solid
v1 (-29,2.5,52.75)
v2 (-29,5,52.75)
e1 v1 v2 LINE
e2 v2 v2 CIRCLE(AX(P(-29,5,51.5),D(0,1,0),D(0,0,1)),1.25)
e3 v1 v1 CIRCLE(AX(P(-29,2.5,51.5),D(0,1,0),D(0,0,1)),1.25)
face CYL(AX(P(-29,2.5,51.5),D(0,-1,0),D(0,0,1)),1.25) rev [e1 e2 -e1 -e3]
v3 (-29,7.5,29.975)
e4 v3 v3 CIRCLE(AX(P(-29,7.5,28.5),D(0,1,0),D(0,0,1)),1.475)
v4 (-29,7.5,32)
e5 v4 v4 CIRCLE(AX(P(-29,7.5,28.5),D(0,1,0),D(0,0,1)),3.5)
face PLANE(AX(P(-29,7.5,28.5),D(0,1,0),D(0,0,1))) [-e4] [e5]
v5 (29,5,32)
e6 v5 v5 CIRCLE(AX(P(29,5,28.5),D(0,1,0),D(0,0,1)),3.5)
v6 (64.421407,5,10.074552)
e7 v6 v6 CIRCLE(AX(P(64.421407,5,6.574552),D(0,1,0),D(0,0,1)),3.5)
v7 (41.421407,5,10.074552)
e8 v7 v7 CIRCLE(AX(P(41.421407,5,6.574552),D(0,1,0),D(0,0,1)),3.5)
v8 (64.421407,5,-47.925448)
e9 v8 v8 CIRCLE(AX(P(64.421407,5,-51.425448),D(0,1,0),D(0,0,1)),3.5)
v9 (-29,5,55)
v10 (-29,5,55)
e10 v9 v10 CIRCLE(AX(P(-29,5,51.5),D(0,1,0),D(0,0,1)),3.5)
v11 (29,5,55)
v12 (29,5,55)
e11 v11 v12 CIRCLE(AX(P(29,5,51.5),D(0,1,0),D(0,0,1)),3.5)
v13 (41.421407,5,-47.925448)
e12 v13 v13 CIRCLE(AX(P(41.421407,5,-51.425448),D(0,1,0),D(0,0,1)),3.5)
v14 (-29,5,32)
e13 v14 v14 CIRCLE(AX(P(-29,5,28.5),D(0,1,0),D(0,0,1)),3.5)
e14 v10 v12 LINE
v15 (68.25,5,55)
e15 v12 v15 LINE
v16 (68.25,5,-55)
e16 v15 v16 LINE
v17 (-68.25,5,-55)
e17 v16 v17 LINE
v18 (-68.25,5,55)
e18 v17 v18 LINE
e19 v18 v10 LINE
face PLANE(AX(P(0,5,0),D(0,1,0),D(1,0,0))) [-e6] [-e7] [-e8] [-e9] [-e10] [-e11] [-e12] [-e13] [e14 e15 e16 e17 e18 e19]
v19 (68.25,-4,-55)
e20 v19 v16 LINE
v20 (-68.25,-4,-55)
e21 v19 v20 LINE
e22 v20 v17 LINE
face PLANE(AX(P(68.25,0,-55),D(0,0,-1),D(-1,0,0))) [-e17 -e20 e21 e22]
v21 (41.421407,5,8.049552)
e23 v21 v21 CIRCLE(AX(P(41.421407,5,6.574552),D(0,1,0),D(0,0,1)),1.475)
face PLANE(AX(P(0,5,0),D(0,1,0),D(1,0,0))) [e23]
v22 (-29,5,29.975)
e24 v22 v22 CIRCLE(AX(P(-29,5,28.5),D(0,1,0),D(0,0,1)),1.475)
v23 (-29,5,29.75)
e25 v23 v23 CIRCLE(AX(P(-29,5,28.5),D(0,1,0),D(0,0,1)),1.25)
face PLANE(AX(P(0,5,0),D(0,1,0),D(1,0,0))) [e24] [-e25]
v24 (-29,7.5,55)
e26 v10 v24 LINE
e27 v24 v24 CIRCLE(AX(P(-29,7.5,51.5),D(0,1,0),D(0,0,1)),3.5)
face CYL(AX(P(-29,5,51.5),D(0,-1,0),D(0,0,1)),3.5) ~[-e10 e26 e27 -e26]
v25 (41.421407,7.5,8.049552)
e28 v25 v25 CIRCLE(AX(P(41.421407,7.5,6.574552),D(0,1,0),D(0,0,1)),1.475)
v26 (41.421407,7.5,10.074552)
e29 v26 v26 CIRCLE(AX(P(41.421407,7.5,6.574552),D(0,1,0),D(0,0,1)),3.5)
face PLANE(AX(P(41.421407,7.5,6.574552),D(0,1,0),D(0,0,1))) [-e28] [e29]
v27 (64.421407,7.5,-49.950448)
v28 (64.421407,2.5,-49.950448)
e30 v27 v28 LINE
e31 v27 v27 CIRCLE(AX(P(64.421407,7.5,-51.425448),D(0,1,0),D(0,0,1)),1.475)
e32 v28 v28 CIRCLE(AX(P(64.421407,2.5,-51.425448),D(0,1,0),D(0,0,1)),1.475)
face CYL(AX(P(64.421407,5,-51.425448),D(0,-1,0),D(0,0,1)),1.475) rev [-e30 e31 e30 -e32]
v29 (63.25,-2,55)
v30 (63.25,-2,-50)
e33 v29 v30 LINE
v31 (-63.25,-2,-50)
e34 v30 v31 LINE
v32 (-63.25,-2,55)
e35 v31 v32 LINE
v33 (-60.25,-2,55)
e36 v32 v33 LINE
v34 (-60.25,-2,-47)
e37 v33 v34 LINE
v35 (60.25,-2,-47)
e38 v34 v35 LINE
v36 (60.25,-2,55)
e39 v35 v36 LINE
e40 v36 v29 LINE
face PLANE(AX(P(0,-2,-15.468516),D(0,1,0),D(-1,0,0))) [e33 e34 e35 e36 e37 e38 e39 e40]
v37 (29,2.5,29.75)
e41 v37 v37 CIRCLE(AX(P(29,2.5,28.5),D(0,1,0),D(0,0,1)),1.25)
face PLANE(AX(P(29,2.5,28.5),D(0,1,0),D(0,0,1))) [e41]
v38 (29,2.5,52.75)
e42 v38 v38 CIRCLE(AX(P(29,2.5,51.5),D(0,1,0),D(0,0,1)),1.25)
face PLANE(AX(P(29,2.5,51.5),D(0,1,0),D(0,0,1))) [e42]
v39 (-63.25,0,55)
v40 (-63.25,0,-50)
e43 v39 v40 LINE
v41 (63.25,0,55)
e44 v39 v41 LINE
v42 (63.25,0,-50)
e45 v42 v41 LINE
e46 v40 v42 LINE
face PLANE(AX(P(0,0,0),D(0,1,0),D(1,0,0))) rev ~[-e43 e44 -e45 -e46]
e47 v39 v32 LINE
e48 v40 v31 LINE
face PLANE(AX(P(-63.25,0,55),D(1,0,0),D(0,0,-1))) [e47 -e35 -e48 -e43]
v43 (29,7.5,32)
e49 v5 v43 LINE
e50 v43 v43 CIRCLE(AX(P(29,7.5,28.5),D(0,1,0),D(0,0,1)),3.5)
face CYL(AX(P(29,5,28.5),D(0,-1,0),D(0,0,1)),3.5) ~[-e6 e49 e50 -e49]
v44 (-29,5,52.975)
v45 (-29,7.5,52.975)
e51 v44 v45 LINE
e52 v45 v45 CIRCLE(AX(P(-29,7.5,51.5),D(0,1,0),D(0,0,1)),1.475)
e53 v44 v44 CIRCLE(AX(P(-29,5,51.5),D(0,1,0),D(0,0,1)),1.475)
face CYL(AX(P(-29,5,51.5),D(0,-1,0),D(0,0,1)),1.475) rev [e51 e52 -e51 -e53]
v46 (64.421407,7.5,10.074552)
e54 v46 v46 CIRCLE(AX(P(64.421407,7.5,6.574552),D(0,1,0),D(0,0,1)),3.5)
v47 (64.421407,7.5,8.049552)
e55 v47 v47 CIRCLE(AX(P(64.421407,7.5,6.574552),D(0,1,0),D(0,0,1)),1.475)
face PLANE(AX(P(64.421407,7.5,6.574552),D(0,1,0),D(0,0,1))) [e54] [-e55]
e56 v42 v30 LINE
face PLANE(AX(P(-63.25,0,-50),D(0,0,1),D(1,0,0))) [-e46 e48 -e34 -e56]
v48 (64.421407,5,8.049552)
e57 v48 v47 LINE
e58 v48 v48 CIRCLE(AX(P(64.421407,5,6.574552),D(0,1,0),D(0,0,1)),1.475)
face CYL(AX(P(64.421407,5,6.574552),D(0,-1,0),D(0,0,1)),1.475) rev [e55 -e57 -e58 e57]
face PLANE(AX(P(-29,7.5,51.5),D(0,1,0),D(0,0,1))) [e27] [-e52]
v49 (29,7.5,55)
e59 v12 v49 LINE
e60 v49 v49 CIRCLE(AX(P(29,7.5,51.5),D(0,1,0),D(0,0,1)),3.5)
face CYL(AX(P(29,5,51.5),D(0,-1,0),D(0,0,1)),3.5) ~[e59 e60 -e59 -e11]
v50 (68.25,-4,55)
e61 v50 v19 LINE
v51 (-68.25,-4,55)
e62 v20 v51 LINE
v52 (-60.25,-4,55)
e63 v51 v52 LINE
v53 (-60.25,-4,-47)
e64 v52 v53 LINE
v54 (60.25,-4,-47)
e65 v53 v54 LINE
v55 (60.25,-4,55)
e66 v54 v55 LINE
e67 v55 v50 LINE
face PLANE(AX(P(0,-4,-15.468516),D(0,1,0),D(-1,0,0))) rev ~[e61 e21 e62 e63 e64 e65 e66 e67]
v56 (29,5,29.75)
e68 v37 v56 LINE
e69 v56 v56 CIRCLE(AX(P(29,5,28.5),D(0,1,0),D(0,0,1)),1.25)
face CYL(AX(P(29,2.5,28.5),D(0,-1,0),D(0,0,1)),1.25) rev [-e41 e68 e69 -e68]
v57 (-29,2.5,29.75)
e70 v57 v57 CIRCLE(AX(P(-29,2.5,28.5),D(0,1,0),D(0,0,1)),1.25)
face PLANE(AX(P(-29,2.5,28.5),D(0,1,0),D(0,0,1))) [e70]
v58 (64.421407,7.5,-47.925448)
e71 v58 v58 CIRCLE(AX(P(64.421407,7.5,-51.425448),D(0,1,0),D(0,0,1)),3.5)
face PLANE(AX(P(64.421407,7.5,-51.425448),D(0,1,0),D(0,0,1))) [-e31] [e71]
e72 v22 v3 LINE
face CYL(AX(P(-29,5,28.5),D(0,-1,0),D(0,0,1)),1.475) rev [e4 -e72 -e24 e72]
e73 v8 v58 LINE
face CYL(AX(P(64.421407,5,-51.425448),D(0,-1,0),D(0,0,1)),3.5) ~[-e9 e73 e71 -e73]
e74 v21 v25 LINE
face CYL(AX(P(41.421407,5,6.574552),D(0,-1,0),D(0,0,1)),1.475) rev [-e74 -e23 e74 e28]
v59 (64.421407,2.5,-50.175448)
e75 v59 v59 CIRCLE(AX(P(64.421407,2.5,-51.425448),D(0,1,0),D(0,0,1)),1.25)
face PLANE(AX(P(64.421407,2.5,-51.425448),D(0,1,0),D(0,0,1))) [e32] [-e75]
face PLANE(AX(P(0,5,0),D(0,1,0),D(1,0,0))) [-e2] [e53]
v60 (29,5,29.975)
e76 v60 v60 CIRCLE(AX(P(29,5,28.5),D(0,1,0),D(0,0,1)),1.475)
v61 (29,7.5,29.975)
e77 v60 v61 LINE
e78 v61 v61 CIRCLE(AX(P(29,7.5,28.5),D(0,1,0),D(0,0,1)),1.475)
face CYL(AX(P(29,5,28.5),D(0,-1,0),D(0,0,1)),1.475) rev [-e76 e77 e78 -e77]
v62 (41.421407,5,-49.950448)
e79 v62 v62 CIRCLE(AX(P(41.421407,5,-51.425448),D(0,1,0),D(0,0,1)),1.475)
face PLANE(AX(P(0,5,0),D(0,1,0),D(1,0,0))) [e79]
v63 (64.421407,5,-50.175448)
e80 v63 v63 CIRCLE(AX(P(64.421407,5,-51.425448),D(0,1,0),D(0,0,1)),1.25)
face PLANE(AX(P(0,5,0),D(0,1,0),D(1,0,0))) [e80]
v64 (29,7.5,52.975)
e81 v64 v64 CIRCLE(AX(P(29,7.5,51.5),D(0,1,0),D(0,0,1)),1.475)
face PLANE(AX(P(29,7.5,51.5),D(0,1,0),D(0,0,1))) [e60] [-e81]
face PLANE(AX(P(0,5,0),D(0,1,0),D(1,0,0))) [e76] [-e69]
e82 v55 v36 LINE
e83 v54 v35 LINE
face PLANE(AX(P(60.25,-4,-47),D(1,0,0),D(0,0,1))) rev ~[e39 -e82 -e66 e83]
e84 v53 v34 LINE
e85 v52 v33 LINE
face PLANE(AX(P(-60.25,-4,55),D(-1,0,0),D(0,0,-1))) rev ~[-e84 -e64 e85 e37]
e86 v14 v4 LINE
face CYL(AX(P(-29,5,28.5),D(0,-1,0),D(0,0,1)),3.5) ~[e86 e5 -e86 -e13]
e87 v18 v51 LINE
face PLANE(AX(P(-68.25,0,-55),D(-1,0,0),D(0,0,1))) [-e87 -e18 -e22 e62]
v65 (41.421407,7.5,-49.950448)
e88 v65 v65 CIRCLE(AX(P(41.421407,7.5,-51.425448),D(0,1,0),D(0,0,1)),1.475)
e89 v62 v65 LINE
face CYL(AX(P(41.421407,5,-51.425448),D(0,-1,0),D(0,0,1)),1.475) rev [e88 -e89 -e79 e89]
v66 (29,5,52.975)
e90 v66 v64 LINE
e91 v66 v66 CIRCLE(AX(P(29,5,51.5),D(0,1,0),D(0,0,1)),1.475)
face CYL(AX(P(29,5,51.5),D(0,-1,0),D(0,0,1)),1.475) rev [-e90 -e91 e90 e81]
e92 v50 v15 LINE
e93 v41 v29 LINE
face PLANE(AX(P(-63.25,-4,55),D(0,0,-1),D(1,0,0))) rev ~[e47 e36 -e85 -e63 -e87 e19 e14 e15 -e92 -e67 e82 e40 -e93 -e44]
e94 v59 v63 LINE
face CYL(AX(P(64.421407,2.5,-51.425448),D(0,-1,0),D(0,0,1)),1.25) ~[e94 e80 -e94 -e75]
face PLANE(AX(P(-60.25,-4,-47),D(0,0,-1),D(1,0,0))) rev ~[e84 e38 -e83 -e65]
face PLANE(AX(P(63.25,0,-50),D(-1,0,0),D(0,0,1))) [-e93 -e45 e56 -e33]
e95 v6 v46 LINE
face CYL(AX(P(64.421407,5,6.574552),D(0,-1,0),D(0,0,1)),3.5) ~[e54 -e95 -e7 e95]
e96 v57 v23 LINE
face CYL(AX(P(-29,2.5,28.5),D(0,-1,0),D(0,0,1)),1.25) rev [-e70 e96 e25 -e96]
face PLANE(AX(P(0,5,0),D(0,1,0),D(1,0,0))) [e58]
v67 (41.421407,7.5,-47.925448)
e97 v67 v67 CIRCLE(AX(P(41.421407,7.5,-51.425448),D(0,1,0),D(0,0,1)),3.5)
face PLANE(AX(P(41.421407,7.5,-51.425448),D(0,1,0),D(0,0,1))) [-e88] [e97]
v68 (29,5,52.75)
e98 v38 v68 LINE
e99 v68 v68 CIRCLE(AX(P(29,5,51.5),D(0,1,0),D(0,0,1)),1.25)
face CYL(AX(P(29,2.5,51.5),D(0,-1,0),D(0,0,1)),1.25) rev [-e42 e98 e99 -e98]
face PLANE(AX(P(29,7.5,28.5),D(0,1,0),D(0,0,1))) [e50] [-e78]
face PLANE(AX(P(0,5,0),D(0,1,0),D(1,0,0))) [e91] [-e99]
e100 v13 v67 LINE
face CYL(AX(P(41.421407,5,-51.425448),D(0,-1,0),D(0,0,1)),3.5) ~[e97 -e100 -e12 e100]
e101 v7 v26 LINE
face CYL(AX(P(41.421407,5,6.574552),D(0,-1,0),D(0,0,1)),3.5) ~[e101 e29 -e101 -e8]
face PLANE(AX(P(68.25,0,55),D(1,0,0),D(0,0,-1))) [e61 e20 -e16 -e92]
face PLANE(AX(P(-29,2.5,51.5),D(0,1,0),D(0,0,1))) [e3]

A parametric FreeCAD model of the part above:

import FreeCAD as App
import Part
import Sketcher

V = App.Vector
Q = App.Units.Quantity


def add_polygon(sketch, points):
    """Adds a closed chain of lines whose ends are joined by coincident constraints."""
    first, n = sketch.GeometryCount, len(points)
    for a, b in zip(points, points[1:] + points[:1]):
        sketch.addGeometry(Part.LineSegment(App.Vector(*a, 0), App.Vector(*b, 0)), False)
    for i in range(n):
        sketch.addConstraint(Sketcher.Constraint("Coincident", first + i, 2, first + (i + 1) % n, 1))

doc = App.newDocument("Part")
body = doc.addObject("PartDesign::Body", "Body")

sketch1 = body.newObject("Sketcher::SketchObject", "Sketch")
sketch1.AttachmentSupport = (doc.getObject("XZ_Plane"), [""])
sketch1.MapMode = "FlatFace"
add_polygon(sketch1, [(68, 55), (68, -55), (-68, -55), (-68, 55)])
sketch1.addConstraint(Sketcher.Constraint("Vertical", 0))
sketch1.addConstraint(Sketcher.Constraint("Horizontal", 1))
sketch1.addConstraint(Sketcher.Constraint("Vertical", 2))
sketch1.addConstraint(Sketcher.Constraint("Horizontal", 3))
sketch1.addConstraint(Sketcher.Constraint("Symmetric", 0, 2, 2, 2, -1, 1))
sketch1.addConstraint(Sketcher.Constraint("DistanceY", 0, 2, 0, 1, Q("110 mm")))
sketch1.addConstraint(Sketcher.Constraint("DistanceX", 1, 2, 1, 1, Q("136.5 mm")))
pad1 = body.newObject("PartDesign::Pad", "Pad")
pad1.Profile = sketch1
pad1.Length = 5
pad1.Reversed = True

sketch2 = body.newObject("Sketcher::SketchObject", "Sketch001")
sketch2.AttachmentSupport = (doc.getObject("XZ_Plane"), [""])
sketch2.MapMode = "FlatFace"
add_polygon(sketch2, [(63, -50), (63, 55), (68, 55), (68, -55), (-68, -55), (-68, 55), (-63, 55), (-63, -50)])
sketch2.addConstraint(Sketcher.Constraint("Vertical", 0))
sketch2.addConstraint(Sketcher.Constraint("Horizontal", 1))
sketch2.addConstraint(Sketcher.Constraint("Vertical", 2))
sketch2.addConstraint(Sketcher.Constraint("Horizontal", 3))
sketch2.addConstraint(Sketcher.Constraint("Vertical", 4))
sketch2.addConstraint(Sketcher.Constraint("Horizontal", 5))
sketch2.addConstraint(Sketcher.Constraint("Vertical", 6))
sketch2.addConstraint(Sketcher.Constraint("Horizontal", 7))
sketch2.addConstraint(Sketcher.Constraint("Symmetric", 1, 2, 3, 2, -1, 1))
sketch2.addConstraint(Sketcher.Constraint("Symmetric", 0, 2, 5, 2, -2))
sketch2.addConstraint(Sketcher.Constraint("DistanceX", 1, 1, 1, 2, Q("5 mm")))
sketch2.addConstraint(Sketcher.Constraint("DistanceY", 0, 1, 0, 2, Q("105 mm")))
sketch2.addConstraint(Sketcher.Constraint("DistanceY", 2, 2, 2, 1, Q("110 mm")))
sketch2.addConstraint(Sketcher.Constraint("DistanceX", 3, 2, 3, 1, Q("136.5 mm")))
pad2 = body.newObject("PartDesign::Pad", "Pad001")
pad2.Profile = sketch2
pad2.Length = 4

sketch3 = body.newObject("Sketcher::SketchObject", "Sketch002")
sketch3.AttachmentSupport = (doc.getObject("XZ_Plane"), [""])
sketch3.MapMode = "FlatFace"
sketch3.AttachmentOffset = App.Placement(V(0, 0, 4), App.Rotation())
add_polygon(sketch3, [(-60.2, -47), (-60.2, 55), (-63.2, 55), (-63.2, -50), (63.2, -50), (63.2, 55), (60.2, 55), (60.2, -47)])
sketch3.addConstraint(Sketcher.Constraint("Vertical", 0))
sketch3.addConstraint(Sketcher.Constraint("Horizontal", 1))
sketch3.addConstraint(Sketcher.Constraint("Vertical", 2))
sketch3.addConstraint(Sketcher.Constraint("Horizontal", 3))
sketch3.addConstraint(Sketcher.Constraint("Vertical", 4))
sketch3.addConstraint(Sketcher.Constraint("Horizontal", 5))
sketch3.addConstraint(Sketcher.Constraint("Vertical", 6))
sketch3.addConstraint(Sketcher.Constraint("Horizontal", 7))
sketch3.addConstraint(Sketcher.Constraint("Symmetric", 1, 2, 4, 2, -2))
sketch3.addConstraint(Sketcher.Constraint("Equal", 1, 5))
sketch3.addConstraint(Sketcher.Constraint("DistanceX", 1, 2, 1, 1, Q("3 mm")))
sketch3.addConstraint(Sketcher.Constraint("DistanceY", 0, 1, 0, 2, Q("102 mm")))
sketch3.addConstraint(Sketcher.Constraint("DistanceY", 2, 2, 2, 1, Q("105 mm")))
sketch3.addConstraint(Sketcher.Constraint("DistanceX", 3, 1, 3, 2, Q("126.5 mm")))
sketch3.addConstraint(Sketcher.Constraint("DistanceY", -1, 1, 0, 2, Q("55 mm")))
pad3 = body.newObject("PartDesign::Pad", "Pad002")
pad3.Profile = sketch3
pad3.Length = 2
pad3.Reversed = True

sketch4 = body.newObject("Sketcher::SketchObject", "Sketch003")
sketch4.AttachmentSupport = (doc.getObject("XZ_Plane"), [""])
sketch4.MapMode = "FlatFace"
sketch4.AttachmentOffset = App.Placement(V(0, 0, -5), App.Rotation())
sketch4.addGeometry(Part.Circle(V(29, 51.5, 0), V(0, 0, 1), 3.5), False)
sketch4.addGeometry(Part.Circle(V(29, 51.5, 0), V(0, 0, 1), 1.5), False)
sketch4.addGeometry(Part.Circle(V(29, 28.5, 0), V(0, 0, 1), 3.5), False)
sketch4.addGeometry(Part.Circle(V(29, 28.5, 0), V(0, 0, 1), 1.5), False)
sketch4.addGeometry(Part.Circle(V(-29, 51.5, 0), V(0, 0, 1), 3.5), False)
sketch4.addGeometry(Part.Circle(V(-29, 51.5, 0), V(0, 0, 1), 1.5), False)
sketch4.addGeometry(Part.Circle(V(-29, 28.5, 0), V(0, 0, 1), 3.5), False)
sketch4.addGeometry(Part.Circle(V(-29, 28.5, 0), V(0, 0, 1), 1.5), False)
sketch4.addGeometry(Part.Circle(V(64.4, -51.4, 0), V(0, 0, 1), 3.5), False)
sketch4.addGeometry(Part.Circle(V(64.4, -51.4, 0), V(0, 0, 1), 1.5), False)
sketch4.addGeometry(Part.Circle(V(41.4, -51.4, 0), V(0, 0, 1), 3.5), False)
sketch4.addGeometry(Part.Circle(V(41.4, -51.4, 0), V(0, 0, 1), 1.5), False)
sketch4.addGeometry(Part.Circle(V(64.4, 6.6, 0), V(0, 0, 1), 3.5), False)
sketch4.addGeometry(Part.Circle(V(64.4, 6.6, 0), V(0, 0, 1), 1.5), False)
sketch4.addGeometry(Part.Circle(V(41.4, 6.6, 0), V(0, 0, 1), 3.5), False)
sketch4.addGeometry(Part.Circle(V(41.4, 6.6, 0), V(0, 0, 1), 1.5), False)
sketch4.addConstraint(Sketcher.Constraint("Coincident", 1, 3, 0, 3))
sketch4.addConstraint(Sketcher.Constraint("Coincident", 3, 3, 2, 3))
sketch4.addConstraint(Sketcher.Constraint("Coincident", 5, 3, 4, 3))
sketch4.addConstraint(Sketcher.Constraint("Coincident", 7, 3, 6, 3))
sketch4.addConstraint(Sketcher.Constraint("Coincident", 9, 3, 8, 3))
sketch4.addConstraint(Sketcher.Constraint("Coincident", 11, 3, 10, 3))
sketch4.addConstraint(Sketcher.Constraint("Coincident", 13, 3, 12, 3))
sketch4.addConstraint(Sketcher.Constraint("Coincident", 15, 3, 14, 3))
sketch4.addConstraint(Sketcher.Constraint("Equal", 0, 2))
sketch4.addConstraint(Sketcher.Constraint("Equal", 1, 3))
sketch4.addConstraint(Sketcher.Constraint("Equal", 2, 4))
sketch4.addConstraint(Sketcher.Constraint("Equal", 3, 5))
sketch4.addConstraint(Sketcher.Constraint("Equal", 4, 6))
sketch4.addConstraint(Sketcher.Constraint("Equal", 5, 7))
sketch4.addConstraint(Sketcher.Constraint("Equal", 6, 8))
sketch4.addConstraint(Sketcher.Constraint("Equal", 7, 9))
sketch4.addConstraint(Sketcher.Constraint("Equal", 8, 10))
sketch4.addConstraint(Sketcher.Constraint("Equal", 9, 11))
sketch4.addConstraint(Sketcher.Constraint("Equal", 10, 12))
sketch4.addConstraint(Sketcher.Constraint("Equal", 11, 13))
sketch4.addConstraint(Sketcher.Constraint("Equal", 12, 14))
sketch4.addConstraint(Sketcher.Constraint("Equal", 13, 15))
sketch4.addConstraint(Sketcher.Constraint("Symmetric", 0, 3, 4, 3, -2))
sketch4.addConstraint(Sketcher.Constraint("Symmetric", 2, 3, 6, 3, -2))
sketch4.addConstraint(Sketcher.Constraint("Horizontal", 9, 3, 10, 3))
sketch4.addConstraint(Sketcher.Constraint("Horizontal", 13, 3, 14, 3))
sketch4.addConstraint(Sketcher.Constraint("Vertical", 1, 3, 2, 3))
sketch4.addConstraint(Sketcher.Constraint("Vertical", 9, 3, 12, 3))
sketch4.addConstraint(Sketcher.Constraint("Vertical", 11, 3, 14, 3))
sketch4.addConstraint(Sketcher.Constraint("Diameter", 0, Q("7 mm")))
sketch4.addConstraint(Sketcher.Constraint("Diameter", 1, Q("2.95 mm")))
sketch4.addConstraint(Sketcher.Constraint("DistanceX", -1, 1, 0, 3, Q("29 mm")))
sketch4.addConstraint(Sketcher.Constraint("DistanceY", 2, 3, 0, 3, Q("23 mm")))
sketch4.addConstraint(Sketcher.Constraint("DistanceX", 10, 3, 8, 3, Q("23 mm")))
sketch4.addConstraint(Sketcher.Constraint("DistanceY", 8, 3, 12, 3, Q("58 mm")))
sketch4.addConstraint(Sketcher.Constraint("DistanceY", -1, 1, 0, 3, Q("51.5 mm")))
sketch4.addConstraint(Sketcher.Constraint("DistanceY", 8, 3, -1, 1, Q("51.425448 mm")))
sketch4.addConstraint(Sketcher.Constraint("DistanceX", -1, 1, 8, 3, Q("64.421407 mm")))
pad4 = body.newObject("PartDesign::Pad", "Pad003")
pad4.Profile = sketch4
pad4.Length = 2.5
pad4.Reversed = True

sketch5 = body.newObject("Sketcher::SketchObject", "Sketch004")
sketch5.AttachmentSupport = (doc.getObject("XZ_Plane"), [""])
sketch5.MapMode = "FlatFace"
sketch5.AttachmentOffset = App.Placement(V(0, 0, -2.5), App.Rotation())
sketch5.addGeometry(Part.Circle(V(-29, 51.5, 0), V(0, 0, 1), 1.2), False)
sketch5.addGeometry(Part.Circle(V(-29, 28.5, 0), V(0, 0, 1), 1.2), False)
sketch5.addGeometry(Part.Circle(V(29, 28.5, 0), V(0, 0, 1), 1.2), False)
sketch5.addGeometry(Part.Circle(V(29, 51.5, 0), V(0, 0, 1), 1.2), False)
sketch5.addGeometry(Part.Circle(V(64.4, -51.4, 0), V(0, 0, 1), 1.5), False)
sketch5.addGeometry(Part.Circle(V(64.4, -51.4, 0), V(0, 0, 1), 1.2), False)
sketch5.addConstraint(Sketcher.Constraint("Coincident", 5, 3, 4, 3))
sketch5.addConstraint(Sketcher.Constraint("Equal", 0, 1))
sketch5.addConstraint(Sketcher.Constraint("Equal", 1, 2))
sketch5.addConstraint(Sketcher.Constraint("Equal", 2, 3))
sketch5.addConstraint(Sketcher.Constraint("Equal", 3, 5))
sketch5.addConstraint(Sketcher.Constraint("Symmetric", 1, 3, 2, 3, -2))
sketch5.addConstraint(Sketcher.Constraint("Symmetric", 0, 3, 3, 3, -2))
sketch5.addConstraint(Sketcher.Constraint("Vertical", 0, 3, 1, 3))
sketch5.addConstraint(Sketcher.Constraint("Diameter", 0, Q("2.5 mm")))
sketch5.addConstraint(Sketcher.Constraint("Diameter", 4, Q("2.95 mm")))
sketch5.addConstraint(Sketcher.Constraint("DistanceX", 0, 3, -1, 1, Q("29 mm")))
sketch5.addConstraint(Sketcher.Constraint("DistanceY", 1, 3, 0, 3, Q("23 mm")))
sketch5.addConstraint(Sketcher.Constraint("DistanceY", -1, 1, 0, 3, Q("51.5 mm")))
sketch5.addConstraint(Sketcher.Constraint("DistanceY", 4, 3, -1, 1, Q("51.425448 mm")))
sketch5.addConstraint(Sketcher.Constraint("DistanceX", -1, 1, 4, 3, Q("64.421407 mm")))
pocket1 = body.newObject("PartDesign::Pocket", "Pocket")
pocket1.Profile = sketch5
pocket1.Length = 2.5

doc.recompute()
